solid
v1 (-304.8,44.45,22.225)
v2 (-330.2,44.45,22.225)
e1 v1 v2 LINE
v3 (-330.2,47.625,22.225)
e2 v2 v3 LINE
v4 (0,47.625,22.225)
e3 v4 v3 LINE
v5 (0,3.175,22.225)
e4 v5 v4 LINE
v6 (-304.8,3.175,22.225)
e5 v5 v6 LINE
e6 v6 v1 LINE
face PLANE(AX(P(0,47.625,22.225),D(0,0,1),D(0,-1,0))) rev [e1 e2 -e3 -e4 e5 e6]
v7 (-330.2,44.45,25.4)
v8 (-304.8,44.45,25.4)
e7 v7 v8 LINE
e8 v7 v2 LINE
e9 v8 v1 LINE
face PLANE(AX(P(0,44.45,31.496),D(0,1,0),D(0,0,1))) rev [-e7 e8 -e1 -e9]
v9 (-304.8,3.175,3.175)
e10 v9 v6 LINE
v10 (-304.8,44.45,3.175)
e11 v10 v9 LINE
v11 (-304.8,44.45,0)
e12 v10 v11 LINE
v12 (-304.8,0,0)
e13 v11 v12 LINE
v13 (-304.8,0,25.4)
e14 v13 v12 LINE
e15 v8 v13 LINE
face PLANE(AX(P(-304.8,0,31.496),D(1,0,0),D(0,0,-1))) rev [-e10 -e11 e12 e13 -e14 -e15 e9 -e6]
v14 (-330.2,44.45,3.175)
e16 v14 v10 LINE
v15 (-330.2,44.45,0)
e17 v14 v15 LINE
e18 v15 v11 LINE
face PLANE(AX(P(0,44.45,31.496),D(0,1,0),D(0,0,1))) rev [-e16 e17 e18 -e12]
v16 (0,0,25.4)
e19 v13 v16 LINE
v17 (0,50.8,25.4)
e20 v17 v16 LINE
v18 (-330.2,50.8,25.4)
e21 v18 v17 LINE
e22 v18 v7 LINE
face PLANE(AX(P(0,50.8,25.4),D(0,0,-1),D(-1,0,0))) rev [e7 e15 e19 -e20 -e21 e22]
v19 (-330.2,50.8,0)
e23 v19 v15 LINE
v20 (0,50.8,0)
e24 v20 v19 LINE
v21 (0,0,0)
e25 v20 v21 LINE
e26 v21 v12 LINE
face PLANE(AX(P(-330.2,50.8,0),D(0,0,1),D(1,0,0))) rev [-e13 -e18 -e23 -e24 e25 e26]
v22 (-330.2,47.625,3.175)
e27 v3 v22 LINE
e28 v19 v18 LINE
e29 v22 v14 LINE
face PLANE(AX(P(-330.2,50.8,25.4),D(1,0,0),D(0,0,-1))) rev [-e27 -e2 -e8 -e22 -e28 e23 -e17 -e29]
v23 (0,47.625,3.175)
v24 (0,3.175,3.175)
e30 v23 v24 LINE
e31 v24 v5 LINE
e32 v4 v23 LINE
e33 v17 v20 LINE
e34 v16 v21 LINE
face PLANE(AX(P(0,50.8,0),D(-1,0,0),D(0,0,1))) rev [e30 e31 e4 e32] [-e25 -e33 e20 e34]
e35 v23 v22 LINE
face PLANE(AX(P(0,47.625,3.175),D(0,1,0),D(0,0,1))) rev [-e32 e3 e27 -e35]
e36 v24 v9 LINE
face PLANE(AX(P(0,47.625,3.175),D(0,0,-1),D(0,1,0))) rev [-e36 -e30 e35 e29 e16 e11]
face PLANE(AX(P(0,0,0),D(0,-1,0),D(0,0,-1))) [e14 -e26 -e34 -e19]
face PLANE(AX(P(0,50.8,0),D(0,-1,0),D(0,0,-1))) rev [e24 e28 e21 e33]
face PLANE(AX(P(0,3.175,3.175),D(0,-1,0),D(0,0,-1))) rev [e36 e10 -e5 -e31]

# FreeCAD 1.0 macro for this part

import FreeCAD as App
import Part
import Sketcher
from FreeCAD import Vector
Q = App.Units.Quantity

doc = App.newDocument("Part")
body = doc.addObject("PartDesign::Body", "Body")

# Sketch on XZ plane
sketch1 = body.newObject("Sketcher::SketchObject", "Sketch")
sketch1.AttachmentSupport = (doc.getObject("XZ_Plane"), [""])
sketch1.MapMode = "FlatFace"
sketch1.addGeometry([
    Part.LineSegment(Vector(-330, 0, 0), Vector(-330, 25, 0)),
    Part.LineSegment(Vector(-330, 25, 0), Vector(0, 25, 0)),
    Part.LineSegment(Vector(0, 25, 0), Vector(0, 0, 0)),
    Part.LineSegment(Vector(0, 0, 0), Vector(-330, 0, 0)),
], False)
sketch1.addConstraint([
    Sketcher.Constraint("Coincident", 0, 2, 1, 1),
    Sketcher.Constraint("Coincident", 1, 2, 2, 1),
    Sketcher.Constraint("Coincident", 2, 2, 3, 1),
    Sketcher.Constraint("Coincident", 3, 2, 0, 1),
    Sketcher.Constraint("Vertical", 0),
    Sketcher.Constraint("Horizontal", 1),
    Sketcher.Constraint("Vertical", 2),
    Sketcher.Constraint("Horizontal", 3),
    Sketcher.Constraint("Coincident", 2, 2, -1, 1),
    Sketcher.Constraint("DistanceX", 1, 1, 1, 2, Q("13 in")),
    Sketcher.Constraint("DistanceY", 0, 1, 0, 2, Q("1 in")),
])
pad1 = body.newObject("PartDesign::Pad", "Pad")
pad1.Profile = sketch1
pad1.Length = Q("2 in")
pad1.Reversed = True

# Sketch on YZ plane
sketch2 = body.newObject("Sketcher::SketchObject", "Sketch001")
sketch2.AttachmentSupport = (doc.getObject("YZ_Plane"), [""])
sketch2.MapMode = "FlatFace"
sketch2.AttachmentOffset = App.Placement(Vector(0, 0, -13 * 25.4), App.Rotation())
sketch2.addGeometry([
    Part.LineSegment(Vector(48, 3, 0), Vector(3, 3, 0)),
    Part.LineSegment(Vector(3, 3, 0), Vector(3, 22, 0)),
    Part.LineSegment(Vector(3, 22, 0), Vector(48, 22, 0)),
    Part.LineSegment(Vector(48, 22, 0), Vector(48, 3, 0)),
], False)
sketch2.addConstraint([
    Sketcher.Constraint("Coincident", 0, 2, 1, 1),
    Sketcher.Constraint("Coincident", 1, 2, 2, 1),
    Sketcher.Constraint("Coincident", 2, 2, 3, 1),
    Sketcher.Constraint("Coincident", 3, 2, 0, 1),
    Sketcher.Constraint("Horizontal", 0),
    Sketcher.Constraint("Vertical", 1),
    Sketcher.Constraint("Horizontal", 2),
    Sketcher.Constraint("Vertical", 3),
    Sketcher.Constraint("DistanceX", 0, 2, 0, 1, Q("1.75 in")),
    Sketcher.Constraint("DistanceY", 1, 1, 1, 2, Q("0.75 in")),
    Sketcher.Constraint("DistanceX", -1, 1, 0, 2, Q("0.125 in")),
    Sketcher.Constraint("DistanceY", -1, 1, 0, 2, Q("0.125 in")),
])
pocket1 = body.newObject("PartDesign::Pocket", "Pocket")
pocket1.Profile = sketch2
pocket1.Length = Q("13 in")
pocket1.Reversed = True

# Sketch on XY plane
sketch3 = body.newObject("Sketcher::SketchObject", "Sketch002")
sketch3.AttachmentSupport = (doc.getObject("XY_Plane"), [""])
sketch3.MapMode = "FlatFace"
sketch3.addGeometry([
    Part.LineSegment(Vector(-305, 44, 0), Vector(-305, 0, 0)),
    Part.LineSegment(Vector(-305, 0, 0), Vector(-330, 0, 0)),
    Part.LineSegment(Vector(-330, 0, 0), Vector(-330, 44, 0)),
    Part.LineSegment(Vector(-330, 44, 0), Vector(-305, 44, 0)),
], False)
sketch3.addConstraint([
    Sketcher.Constraint("Coincident", 0, 2, 1, 1),
    Sketcher.Constraint("Coincident", 1, 2, 2, 1),
    Sketcher.Constraint("Coincident", 2, 2, 3, 1),
    Sketcher.Constraint("Coincident", 3, 2, 0, 1),
    Sketcher.Constraint("Vertical", 0),
    Sketcher.Constraint("Horizontal", 1),
    Sketcher.Constraint("Vertical", 2),
    Sketcher.Constraint("Horizontal", 3),
    Sketcher.Constraint("PointOnObject", 0, 2, -1),
    Sketcher.Constraint("DistanceX", 1, 2, 1, 1, Q("1 in")),
    Sketcher.Constraint("DistanceX", 0, 2, -1, 1, Q("12 in")),
    Sketcher.Constraint("DistanceY", 0, 2, 0, 1, Q("1.75 in")),
])
pocket2 = body.newObject("PartDesign::Pocket", "Pocket001")
pocket2.Profile = sketch3
pocket2.Length = Q("1.24 in")
pocket2.Reversed = True

doc.recompute()
